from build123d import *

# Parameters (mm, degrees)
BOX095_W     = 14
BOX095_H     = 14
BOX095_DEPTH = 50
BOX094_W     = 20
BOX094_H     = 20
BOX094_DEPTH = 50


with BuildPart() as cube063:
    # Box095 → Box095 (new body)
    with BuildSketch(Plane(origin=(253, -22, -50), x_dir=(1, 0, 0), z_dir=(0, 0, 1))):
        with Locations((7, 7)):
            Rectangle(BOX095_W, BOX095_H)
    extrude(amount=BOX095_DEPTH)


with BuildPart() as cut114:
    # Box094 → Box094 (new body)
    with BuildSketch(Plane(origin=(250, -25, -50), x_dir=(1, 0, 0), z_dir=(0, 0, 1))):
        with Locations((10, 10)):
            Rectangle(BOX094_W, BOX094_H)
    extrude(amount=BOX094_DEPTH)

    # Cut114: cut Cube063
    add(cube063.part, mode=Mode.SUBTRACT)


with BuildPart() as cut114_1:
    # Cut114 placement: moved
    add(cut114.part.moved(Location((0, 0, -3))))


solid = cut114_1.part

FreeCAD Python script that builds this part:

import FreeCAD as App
import Part
import Sketcher
from FreeCAD import Vector


def add_polygon(sketch, points):
    """Adds a closed chain of lines whose ends are joined by coincident constraints."""
    first, n = sketch.GeometryCount, len(points)
    for a, b in zip(points, points[1:] + points[:1]):
        sketch.addGeometry(Part.LineSegment(App.Vector(*a, 0), App.Vector(*b, 0)), False)
    for i in range(n):
        sketch.addConstraint(Sketcher.Constraint("Coincident", first + i, 2, first + (i + 1) % n, 1))

doc = App.newDocument("Part")
body = doc.addObject("PartDesign::Body", "Body")

# Sketch on XY plane
sketch1 = doc.addObject("Sketcher::SketchObject", "Sketch")
body.addObject(sketch1)
sketch1.AttachmentSupport = (doc.XY_Plane, [""])
sketch1.MapMode = "FlatFace"
sketch1.AttachmentOffset = App.Placement(Vector(0, 0, -50), App.Rotation())
add_polygon(sketch1, [(253, -8), (253, -22), (267, -22), (267, -8)])  # lines 0-3
sketch1.addConstraint(Sketcher.Constraint("Vertical", 0))
sketch1.addConstraint(Sketcher.Constraint("Horizontal", 1))
sketch1.addConstraint(Sketcher.Constraint("Vertical", 2))
sketch1.addConstraint(Sketcher.Constraint("Horizontal", 3))
sketch1.addConstraint(Sketcher.Constraint("Equal", 3, 0))
sketch1.addConstraint(Sketcher.Constraint("DistanceX", 1, 1, 1, 2, 14.0))
sketch1.addConstraint(Sketcher.Constraint("DistanceX", -1, 1, 0, 2, 253.0))
sketch1.addConstraint(Sketcher.Constraint("DistanceY", 0, 2, -1, 1, 22.0))
pad1 = doc.addObject("PartDesign::Pad", "Pad")
body.addObject(pad1)
pad1.Profile = sketch1
pad1.Length = 50
body2 = doc.addObject("PartDesign::Body", "Body001")

# Sketch on XY plane
sketch2 = doc.addObject("Sketcher::SketchObject", "Sketch001")
body2.addObject(sketch2)
sketch2.AttachmentSupport = (doc.getObject("XY_Plane001"), [""])
sketch2.MapMode = "FlatFace"
sketch2.AttachmentOffset = App.Placement(Vector(0, 0, -50), App.Rotation())
add_polygon(sketch2, [(250, -5), (250, -25), (270, -25), (270, -5)])  # lines 0-3
sketch2.addConstraint(Sketcher.Constraint("Vertical", 0))
sketch2.addConstraint(Sketcher.Constraint("Horizontal", 1))
sketch2.addConstraint(Sketcher.Constraint("Vertical", 2))
sketch2.addConstraint(Sketcher.Constraint("Horizontal", 3))
sketch2.addConstraint(Sketcher.Constraint("Equal", 3, 0))
sketch2.addConstraint(Sketcher.Constraint("DistanceX", 1, 1, 1, 2, 20.0))
sketch2.addConstraint(Sketcher.Constraint("DistanceX", -1, 1, 0, 2, 250.0))
sketch2.addConstraint(Sketcher.Constraint("DistanceY", 0, 2, -1, 1, 25.0))
pad2 = doc.addObject("PartDesign::Pad", "Pad001")
body2.addObject(pad2)
pad2.Profile = sketch2
pad2.Length = 50
doc.recompute()

boolean = doc.addObject("PartDesign::Boolean", "Boolean")
body2.addObject(boolean)
boolean.Type = "Cut"
boolean.addObjects([body])
body3 = doc.addObject("PartDesign::Body", "Body002")
doc.recompute()

body2.Placement = App.Placement(Vector(0, 0, -3), App.Rotation(Vector(0, 0, 1), 0))
boolean2 = doc.addObject("PartDesign::Boolean", "Boolean001")
body3.addObject(boolean2)
boolean2.Type = "Fuse"
boolean2.addObjects([body2])

doc.recompute()
